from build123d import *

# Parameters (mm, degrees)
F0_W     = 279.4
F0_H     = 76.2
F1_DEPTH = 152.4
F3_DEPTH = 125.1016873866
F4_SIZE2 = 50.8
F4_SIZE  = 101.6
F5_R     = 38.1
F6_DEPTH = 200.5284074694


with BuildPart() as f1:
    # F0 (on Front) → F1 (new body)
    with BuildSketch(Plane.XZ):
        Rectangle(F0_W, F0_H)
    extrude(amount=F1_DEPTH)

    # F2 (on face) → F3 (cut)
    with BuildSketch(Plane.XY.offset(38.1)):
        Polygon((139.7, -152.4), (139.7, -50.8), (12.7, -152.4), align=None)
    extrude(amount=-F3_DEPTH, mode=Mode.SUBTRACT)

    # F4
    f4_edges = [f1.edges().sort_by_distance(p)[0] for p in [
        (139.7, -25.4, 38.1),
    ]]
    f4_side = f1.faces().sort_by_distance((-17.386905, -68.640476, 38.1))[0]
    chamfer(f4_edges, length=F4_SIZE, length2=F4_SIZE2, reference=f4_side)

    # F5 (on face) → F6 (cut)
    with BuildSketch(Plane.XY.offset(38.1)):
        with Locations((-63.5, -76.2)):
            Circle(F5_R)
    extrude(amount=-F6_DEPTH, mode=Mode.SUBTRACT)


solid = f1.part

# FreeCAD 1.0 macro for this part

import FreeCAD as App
import Part
import Sketcher

V = App.Vector
Q = App.Units.Quantity


def edges_at(feature, points):
    """Names of the edges that pass closest to the given points."""
    edges = feature.Shape.Edges
    near = lambda p: min(range(len(edges)), key=lambda i: edges[i].distToShape(Part.Vertex(*p))[0])
    return sorted({f"Edge{near(p) + 1}" for p in points})

doc = App.newDocument("Part")
body = doc.addObject("PartDesign::Body", "Body")

# Sketch on XZ plane
sketch1 = body.newObject("Sketcher::SketchObject", "Sketch")
sketch1.AttachmentSupport = (doc.getObject("XZ_Plane"), [""])
sketch1.MapMode = "FlatFace"
sketch1.addGeometry(Part.LineSegment(V(-140, 38, 0), V(-140, -38, 0)), False)
sketch1.addGeometry(Part.LineSegment(V(-140, -38, 0), V(140, -38, 0)), False)
sketch1.addGeometry(Part.LineSegment(V(140, -38, 0), V(140, 38, 0)), False)
sketch1.addGeometry(Part.LineSegment(V(140, 38, 0), V(-140, 38, 0)), False)
sketch1.addConstraint(Sketcher.Constraint("Coincident", 0, 2, 1, 1))
sketch1.addConstraint(Sketcher.Constraint("Coincident", 1, 2, 2, 1))
sketch1.addConstraint(Sketcher.Constraint("Coincident", 2, 2, 3, 1))
sketch1.addConstraint(Sketcher.Constraint("Coincident", 3, 2, 0, 1))
sketch1.addConstraint(Sketcher.Constraint("Vertical", 0))
sketch1.addConstraint(Sketcher.Constraint("Horizontal", 1))
sketch1.addConstraint(Sketcher.Constraint("Vertical", 2))
sketch1.addConstraint(Sketcher.Constraint("Horizontal", 3))
sketch1.addConstraint(Sketcher.Constraint("Symmetric", 0, 2, 2, 2, -1, 1))
sketch1.addConstraint(Sketcher.Constraint("DistanceX", 1, 1, 1, 2, Q("11 in")))
sketch1.addConstraint(Sketcher.Constraint("DistanceY", 0, 2, 0, 1, Q("3 in")))
pad1 = body.newObject("PartDesign::Pad", "Pad")
pad1.Profile = sketch1
pad1.Length = Q("6 in")

# Sketch on XY plane
sketch2 = body.newObject("Sketcher::SketchObject", "Sketch001")
sketch2.AttachmentSupport = (doc.getObject("XY_Plane"), [""])
sketch2.MapMode = "FlatFace"
sketch2.AttachmentOffset = App.Placement(V(0, 0, 1.5 * 25.4), App.Rotation())
sketch2.addGeometry(Part.LineSegment(V(140, -152, 0), V(140, -51, 0)), False)
sketch2.addGeometry(Part.LineSegment(V(140, -51, 0), V(13, -152, 0)), False)
sketch2.addGeometry(Part.LineSegment(V(13, -152, 0), V(140, -152, 0)), False)
sketch2.addConstraint(Sketcher.Constraint("Coincident", 0, 2, 1, 1))
sketch2.addConstraint(Sketcher.Constraint("Coincident", 1, 2, 2, 1))
sketch2.addConstraint(Sketcher.Constraint("Coincident", 2, 2, 0, 1))
sketch2.addConstraint(Sketcher.Constraint("Vertical", 0))
sketch2.addConstraint(Sketcher.Constraint("Horizontal", 2))
sketch2.addConstraint(Sketcher.Constraint("DistanceX", 2, 1, 2, 2, Q("5 in")))
sketch2.addConstraint(Sketcher.Constraint("DistanceY", 0, 1, 0, 2, Q("4 in")))
sketch2.addConstraint(Sketcher.Constraint("DistanceY", 0, 2, -1, 1, Q("2 in")))
sketch2.addConstraint(Sketcher.Constraint("DistanceX", -1, 1, 0, 2, Q("5.5 in")))
pocket1 = body.newObject("PartDesign::Pocket", "Pocket")
pocket1.Profile = sketch2
pocket1.Length = 125.101687
doc.recompute()

chamfer = body.newObject("PartDesign::Chamfer", "Chamfer")
chamfer.Base = (pocket1, edges_at(pocket1, [(139.7, -25.4, 38.1)]))
chamfer.ChamferType = "Two distances"
chamfer.Size = Q("4 in")
chamfer.Size2 = Q("2 in")

# Sketch on XY plane
sketch3 = body.newObject("Sketcher::SketchObject", "Sketch002")
sketch3.AttachmentSupport = (doc.getObject("XY_Plane"), [""])
sketch3.MapMode = "FlatFace"
sketch3.AttachmentOffset = App.Placement(V(0, 0, 1.5 * 25.4), App.Rotation())
sketch3.addGeometry(Part.Circle(V(-64, -76, 0), V(0, 0, 1), 38), False)
sketch3.addConstraint(Sketcher.Constraint("Diameter", 0, Q("3 in")))
sketch3.addConstraint(Sketcher.Constraint("DistanceY", 0, 3, -1, 1, Q("3 in")))
sketch3.addConstraint(Sketcher.Constraint("DistanceX", 0, 3, -1, 1, Q("2.5 in")))
pocket2 = body.newObject("PartDesign::Pocket", "Pocket001")
pocket2.Profile = sketch3
pocket2.Length = 200.528407

doc.recompute()
